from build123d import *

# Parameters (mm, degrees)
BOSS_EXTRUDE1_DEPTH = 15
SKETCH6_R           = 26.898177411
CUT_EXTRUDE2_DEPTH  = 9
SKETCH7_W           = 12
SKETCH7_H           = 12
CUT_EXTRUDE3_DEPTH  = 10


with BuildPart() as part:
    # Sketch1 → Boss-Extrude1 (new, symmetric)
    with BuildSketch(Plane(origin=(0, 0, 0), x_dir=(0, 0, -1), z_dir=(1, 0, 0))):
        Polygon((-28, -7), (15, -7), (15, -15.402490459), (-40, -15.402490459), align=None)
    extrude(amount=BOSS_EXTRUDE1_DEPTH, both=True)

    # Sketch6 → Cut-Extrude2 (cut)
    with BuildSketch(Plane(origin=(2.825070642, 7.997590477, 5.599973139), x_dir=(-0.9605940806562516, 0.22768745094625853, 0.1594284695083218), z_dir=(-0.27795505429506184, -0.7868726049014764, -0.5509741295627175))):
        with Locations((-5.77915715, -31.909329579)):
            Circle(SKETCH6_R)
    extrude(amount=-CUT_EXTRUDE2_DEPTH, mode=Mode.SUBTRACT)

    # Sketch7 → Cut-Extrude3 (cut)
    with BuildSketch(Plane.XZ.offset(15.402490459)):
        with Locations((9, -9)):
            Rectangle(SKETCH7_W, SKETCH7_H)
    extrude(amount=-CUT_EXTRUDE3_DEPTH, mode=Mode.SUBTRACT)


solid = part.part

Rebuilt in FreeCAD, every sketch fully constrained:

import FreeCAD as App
import Part
import Sketcher
Q = App.Units.Quantity


def add_polygon(sketch, points):
    """Adds a closed chain of lines whose ends are joined by coincident constraints."""
    first, n = sketch.GeometryCount, len(points)
    for a, b in zip(points, points[1:] + points[:1]):
        sketch.addGeometry(Part.LineSegment(App.Vector(*a, 0), App.Vector(*b, 0)), False)
    for i in range(n):
        sketch.addConstraint(Sketcher.Constraint("Coincident", first + i, 2, first + (i + 1) % n, 1))

doc = App.newDocument("Part")
body = doc.addObject("PartDesign::Body", "Body")

# Sketch on YZ plane
sketch1 = body.newObject("Sketcher::SketchObject", "Sketch")
sketch1.AttachmentSupport = (doc.getObject("YZ_Plane"), [""])
sketch1.MapMode = "FlatFace"
add_polygon(sketch1, [(-7, -15), (-7, 28), (-15.40249, 40), (-15.40249, -15)])  # lines 0-3
sketch1.addConstraint([
    Sketcher.Constraint("Vertical", 0),
    Sketcher.Constraint("Vertical", 2),
    Sketcher.Constraint("Horizontal", 3),
    Sketcher.Constraint("DistanceY", 0, 1, 0, 2, Q("43 mm")),
    Sketcher.Constraint("DistanceY", 2, 2, 2, 1, Q("55 mm")),
    Sketcher.Constraint("Angle", 1, Q("125 deg")),
    Sketcher.Constraint("DistanceX", 0, 2, -1, 1, Q("7 mm")),
    Sketcher.Constraint("DistanceY", -1, 1, 0, 2, Q("28 mm")),
])
pad1 = body.newObject("PartDesign::Pad", "Pad")
pad1.Profile = sketch1
pad1.Length = 30
pad1.Midplane = True

# Sketch on an angled plane
sketch2 = body.newObject("Sketcher::SketchObject", "Sketch001")
sketch2.Placement = App.Placement(App.Vector(2.825071, 7.99759, 5.599973), App.Rotation(App.Vector(-0.960594081, 0.227687451, 0.15942847), App.Vector(0, 0.573576437, -0.819152045), App.Vector(-0.277955054, -0.786872605, -0.55097413), "ZXY"))
sketch2.addGeometry(Part.Circle(App.Vector(-5.779157, -31.90933, 0), App.Vector(0, 0, 1), 26.898177), False)
sketch2.addConstraint([
    Sketcher.Constraint("Diameter", 0, Q("53.796355 mm")),
    Sketcher.Constraint("DistanceY", 0, 3, -1, 1, Q("31.90933 mm")),
    Sketcher.Constraint("DistanceX", 0, 3, -1, 1, Q("5.779157 mm")),
])
pocket1 = body.newObject("PartDesign::Pocket", "Pocket")
pocket1.Profile = sketch2
pocket1.Length = 9

# Sketch on XZ plane
sketch3 = body.newObject("Sketcher::SketchObject", "Sketch002")
sketch3.AttachmentSupport = (doc.getObject("XZ_Plane"), [""])
sketch3.MapMode = "FlatFace"
sketch3.AttachmentOffset = App.Placement(App.Vector(0, 0, 15.40249), App.Rotation())
add_polygon(sketch3, [(3, -3), (3, -15), (15, -15), (15, -3)])  # lines 0-3
sketch3.addConstraint([
    Sketcher.Constraint("Vertical", 0),
    Sketcher.Constraint("Horizontal", 1),
    Sketcher.Constraint("Vertical", 2),
    Sketcher.Constraint("Horizontal", 3),
    Sketcher.Constraint("Equal", 3, 0),
    Sketcher.Constraint("DistanceX", 1, 1, 1, 2, Q("12 mm")),
    Sketcher.Constraint("DistanceX", -1, 1, 0, 2, Q("3 mm")),
    Sketcher.Constraint("DistanceY", 0, 2, -1, 1, Q("15 mm")),
])
pocket2 = body.newObject("PartDesign::Pocket", "Pocket001")
pocket2.Profile = sketch3
pocket2.Length = 10

doc.recompute()
